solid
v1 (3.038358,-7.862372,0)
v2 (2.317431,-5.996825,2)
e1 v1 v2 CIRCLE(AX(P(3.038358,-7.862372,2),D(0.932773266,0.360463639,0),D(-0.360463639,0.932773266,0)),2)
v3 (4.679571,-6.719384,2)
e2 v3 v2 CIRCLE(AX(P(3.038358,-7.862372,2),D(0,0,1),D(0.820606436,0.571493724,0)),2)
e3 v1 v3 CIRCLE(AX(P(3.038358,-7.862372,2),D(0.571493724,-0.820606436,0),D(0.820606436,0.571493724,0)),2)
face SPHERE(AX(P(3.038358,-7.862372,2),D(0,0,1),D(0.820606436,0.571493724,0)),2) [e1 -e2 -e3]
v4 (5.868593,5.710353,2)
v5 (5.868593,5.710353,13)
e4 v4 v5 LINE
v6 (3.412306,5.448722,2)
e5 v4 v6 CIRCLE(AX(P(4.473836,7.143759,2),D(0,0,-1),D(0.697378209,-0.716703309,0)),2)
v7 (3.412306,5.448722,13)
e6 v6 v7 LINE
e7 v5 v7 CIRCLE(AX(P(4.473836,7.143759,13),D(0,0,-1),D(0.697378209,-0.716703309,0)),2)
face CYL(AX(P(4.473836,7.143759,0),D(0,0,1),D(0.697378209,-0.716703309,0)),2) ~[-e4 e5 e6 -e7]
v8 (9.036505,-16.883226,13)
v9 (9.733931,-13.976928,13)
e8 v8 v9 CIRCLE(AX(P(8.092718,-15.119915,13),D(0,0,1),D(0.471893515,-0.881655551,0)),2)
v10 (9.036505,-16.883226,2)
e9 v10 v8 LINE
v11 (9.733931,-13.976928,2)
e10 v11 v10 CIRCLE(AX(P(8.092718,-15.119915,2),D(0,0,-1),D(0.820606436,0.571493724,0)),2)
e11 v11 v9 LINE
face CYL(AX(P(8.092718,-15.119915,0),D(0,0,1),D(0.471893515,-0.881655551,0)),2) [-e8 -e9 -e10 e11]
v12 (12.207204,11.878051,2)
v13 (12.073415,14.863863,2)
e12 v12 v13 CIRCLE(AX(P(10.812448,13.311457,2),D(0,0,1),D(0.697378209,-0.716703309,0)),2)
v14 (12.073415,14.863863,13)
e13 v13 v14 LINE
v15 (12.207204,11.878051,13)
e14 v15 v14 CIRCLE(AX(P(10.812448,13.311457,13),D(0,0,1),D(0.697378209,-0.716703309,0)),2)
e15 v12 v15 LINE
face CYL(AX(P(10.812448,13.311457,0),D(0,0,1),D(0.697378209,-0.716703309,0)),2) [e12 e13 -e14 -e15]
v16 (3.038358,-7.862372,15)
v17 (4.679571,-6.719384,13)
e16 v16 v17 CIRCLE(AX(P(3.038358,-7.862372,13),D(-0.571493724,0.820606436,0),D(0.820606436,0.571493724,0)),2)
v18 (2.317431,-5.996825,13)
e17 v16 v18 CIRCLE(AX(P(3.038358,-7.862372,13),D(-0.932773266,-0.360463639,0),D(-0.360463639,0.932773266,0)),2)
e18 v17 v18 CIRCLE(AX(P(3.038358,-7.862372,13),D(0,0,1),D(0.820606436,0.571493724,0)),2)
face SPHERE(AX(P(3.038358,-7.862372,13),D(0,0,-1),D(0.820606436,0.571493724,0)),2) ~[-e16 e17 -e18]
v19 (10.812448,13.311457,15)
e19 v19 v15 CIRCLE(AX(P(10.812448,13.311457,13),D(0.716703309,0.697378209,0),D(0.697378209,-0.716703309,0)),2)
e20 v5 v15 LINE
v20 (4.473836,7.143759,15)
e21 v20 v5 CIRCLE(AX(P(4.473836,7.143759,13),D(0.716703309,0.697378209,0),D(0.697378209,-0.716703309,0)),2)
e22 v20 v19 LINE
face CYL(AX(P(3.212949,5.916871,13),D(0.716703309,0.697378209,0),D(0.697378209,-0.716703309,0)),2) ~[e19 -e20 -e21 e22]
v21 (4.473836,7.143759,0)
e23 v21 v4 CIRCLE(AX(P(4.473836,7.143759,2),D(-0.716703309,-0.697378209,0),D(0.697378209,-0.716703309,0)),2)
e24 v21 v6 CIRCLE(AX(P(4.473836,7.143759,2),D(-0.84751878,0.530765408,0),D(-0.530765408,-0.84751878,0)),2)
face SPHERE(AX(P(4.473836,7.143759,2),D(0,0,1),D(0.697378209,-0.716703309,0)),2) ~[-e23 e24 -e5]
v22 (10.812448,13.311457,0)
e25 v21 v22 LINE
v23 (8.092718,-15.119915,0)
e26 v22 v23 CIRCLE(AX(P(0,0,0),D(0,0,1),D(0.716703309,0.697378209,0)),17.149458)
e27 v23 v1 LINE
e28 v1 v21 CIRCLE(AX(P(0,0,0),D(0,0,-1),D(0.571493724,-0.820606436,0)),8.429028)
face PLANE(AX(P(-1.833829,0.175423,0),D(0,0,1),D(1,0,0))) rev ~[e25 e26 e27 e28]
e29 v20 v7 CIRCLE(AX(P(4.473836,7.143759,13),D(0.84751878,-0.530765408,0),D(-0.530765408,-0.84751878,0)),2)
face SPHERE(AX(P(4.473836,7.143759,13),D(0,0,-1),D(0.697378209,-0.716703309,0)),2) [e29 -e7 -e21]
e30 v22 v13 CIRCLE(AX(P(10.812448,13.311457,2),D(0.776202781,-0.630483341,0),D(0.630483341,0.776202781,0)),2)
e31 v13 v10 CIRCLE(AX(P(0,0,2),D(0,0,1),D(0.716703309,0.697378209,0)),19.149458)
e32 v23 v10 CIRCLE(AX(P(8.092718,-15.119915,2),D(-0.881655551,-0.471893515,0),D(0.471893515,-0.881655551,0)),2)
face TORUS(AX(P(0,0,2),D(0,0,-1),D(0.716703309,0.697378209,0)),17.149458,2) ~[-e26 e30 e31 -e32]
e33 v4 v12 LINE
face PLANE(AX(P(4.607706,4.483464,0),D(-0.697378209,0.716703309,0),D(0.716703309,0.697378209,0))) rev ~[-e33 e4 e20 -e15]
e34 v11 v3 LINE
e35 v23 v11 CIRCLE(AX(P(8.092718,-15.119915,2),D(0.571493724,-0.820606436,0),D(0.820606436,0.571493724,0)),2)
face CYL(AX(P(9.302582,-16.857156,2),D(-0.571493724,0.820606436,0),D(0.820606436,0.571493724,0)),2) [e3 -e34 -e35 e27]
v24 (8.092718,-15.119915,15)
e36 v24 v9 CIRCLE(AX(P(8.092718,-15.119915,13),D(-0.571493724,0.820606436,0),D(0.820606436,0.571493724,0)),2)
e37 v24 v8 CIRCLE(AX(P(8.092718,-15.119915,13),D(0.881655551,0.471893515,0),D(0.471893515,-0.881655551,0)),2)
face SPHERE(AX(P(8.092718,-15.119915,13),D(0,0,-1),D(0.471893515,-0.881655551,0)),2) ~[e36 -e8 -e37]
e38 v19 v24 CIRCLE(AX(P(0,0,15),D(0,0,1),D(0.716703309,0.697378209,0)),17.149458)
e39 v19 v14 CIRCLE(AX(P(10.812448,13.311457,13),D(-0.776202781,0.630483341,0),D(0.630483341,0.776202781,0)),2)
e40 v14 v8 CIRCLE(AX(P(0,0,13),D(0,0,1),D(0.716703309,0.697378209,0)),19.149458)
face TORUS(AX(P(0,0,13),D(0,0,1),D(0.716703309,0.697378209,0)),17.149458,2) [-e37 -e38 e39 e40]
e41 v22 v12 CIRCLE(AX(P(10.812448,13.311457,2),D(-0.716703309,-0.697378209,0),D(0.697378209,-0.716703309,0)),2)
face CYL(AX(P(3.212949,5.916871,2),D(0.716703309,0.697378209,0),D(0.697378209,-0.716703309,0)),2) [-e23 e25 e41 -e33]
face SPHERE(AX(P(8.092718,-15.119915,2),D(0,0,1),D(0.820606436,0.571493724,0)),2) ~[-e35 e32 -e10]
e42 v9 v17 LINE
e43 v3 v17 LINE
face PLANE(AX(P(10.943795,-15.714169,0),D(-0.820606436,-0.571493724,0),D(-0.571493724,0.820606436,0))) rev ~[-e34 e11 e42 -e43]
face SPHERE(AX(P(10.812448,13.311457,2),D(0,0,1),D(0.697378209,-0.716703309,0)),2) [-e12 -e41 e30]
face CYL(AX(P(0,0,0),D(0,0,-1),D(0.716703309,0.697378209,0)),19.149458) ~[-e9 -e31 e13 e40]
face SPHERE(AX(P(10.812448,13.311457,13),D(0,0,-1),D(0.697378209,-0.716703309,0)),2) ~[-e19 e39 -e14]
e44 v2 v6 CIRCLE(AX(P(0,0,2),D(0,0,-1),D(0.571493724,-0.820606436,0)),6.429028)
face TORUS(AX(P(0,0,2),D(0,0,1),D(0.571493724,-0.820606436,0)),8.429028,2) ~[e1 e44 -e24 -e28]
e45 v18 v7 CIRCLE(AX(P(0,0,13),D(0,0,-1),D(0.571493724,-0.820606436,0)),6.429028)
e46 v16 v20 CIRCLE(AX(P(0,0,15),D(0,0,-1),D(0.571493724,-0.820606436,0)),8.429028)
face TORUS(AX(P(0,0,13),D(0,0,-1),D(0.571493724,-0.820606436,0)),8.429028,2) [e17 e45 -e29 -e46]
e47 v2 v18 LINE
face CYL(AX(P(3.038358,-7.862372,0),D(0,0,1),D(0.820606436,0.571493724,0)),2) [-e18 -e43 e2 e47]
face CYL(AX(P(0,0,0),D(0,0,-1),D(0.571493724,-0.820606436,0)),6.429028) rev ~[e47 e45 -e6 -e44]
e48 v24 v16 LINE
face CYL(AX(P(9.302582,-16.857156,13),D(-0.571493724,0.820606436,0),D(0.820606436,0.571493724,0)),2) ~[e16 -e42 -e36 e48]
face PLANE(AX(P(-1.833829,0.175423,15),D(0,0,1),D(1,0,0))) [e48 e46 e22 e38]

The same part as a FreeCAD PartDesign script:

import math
import FreeCAD as App
import Part
import Sketcher
from FreeCAD import Vector

doc = App.newDocument("Part")
params = doc.addObject("Spreadsheet::Sheet", "Params")
for row, (alias, value) in enumerate([
    ("pad1_length", "15 mm"),
    ("fillet_radius", "2 mm"),
], start=1):
    params.set(f"A{row}", alias)
    params.set(f"B{row}", "=" + value)
    params.setAlias(f"B{row}", alias)

body = doc.addObject("PartDesign::Body", "Body")

# Sketch on XY plane
sketch1 = body.newObject("Sketcher::SketchObject", "Sketch")
sketch1.AttachmentSupport = (doc.getObject("XY_Plane"), [""])
sketch1.MapMode = "FlatFace"
sketch1.addGeometry([
    Part.LineSegment(Vector(5, 4, 0), Vector(14, 13, 0)),
    Part.ArcOfCircle(Part.Circle(Vector(0, 0, 0), Vector(0, 0, 1), 19), math.radians(44), math.radians(305)),
    Part.LineSegment(Vector(11, -16, 0), Vector(4, -5, 0)),
    Part.ArcOfCircle(Part.Circle(Vector(0, 0, 0), Vector(0, 0, 1), 6), math.radians(44), math.radians(305)),
], False)
sketch1.addConstraint([
    Sketcher.Constraint("Coincident", 0, 2, 1, 1),
    Sketcher.Constraint("Coincident", 1, 2, 2, 1),
    Sketcher.Constraint("Coincident", 2, 2, 3, 2),
    Sketcher.Constraint("Coincident", 3, 1, 0, 1),
    Sketcher.Constraint("Coincident", 1, 3, -1, 1),
    Sketcher.Constraint("Coincident", 3, 3, -1, 1),
    Sketcher.Constraint("Radius", 1, 19.149458),
    Sketcher.Constraint("Radius", 3, 6.429028),
    Sketcher.Constraint("DistanceY", 2, 2, -1, 1, 5.275702),
    Sketcher.Constraint("DistanceX", -1, 1, 0, 2, 13.72448),
    Sketcher.Constraint("DistanceY", 1, 2, -1, 1, 15.714169),
    Sketcher.Constraint("DistanceY", 3, 1, 0, 2, 8.870951),
])
pad1 = body.newObject("PartDesign::Pad", "Pad")
pad1.Profile = sketch1
pad1.setExpression("Length", "Params.pad1_length")
doc.recompute()

fillet = body.newObject("PartDesign::Fillet", "Fillet")
fillet.Base = (pad1, ["Edge1"])
fillet.UseAllEdges = True
fillet.setExpression("Radius", "Params.fillet_radius")

doc.recompute()
